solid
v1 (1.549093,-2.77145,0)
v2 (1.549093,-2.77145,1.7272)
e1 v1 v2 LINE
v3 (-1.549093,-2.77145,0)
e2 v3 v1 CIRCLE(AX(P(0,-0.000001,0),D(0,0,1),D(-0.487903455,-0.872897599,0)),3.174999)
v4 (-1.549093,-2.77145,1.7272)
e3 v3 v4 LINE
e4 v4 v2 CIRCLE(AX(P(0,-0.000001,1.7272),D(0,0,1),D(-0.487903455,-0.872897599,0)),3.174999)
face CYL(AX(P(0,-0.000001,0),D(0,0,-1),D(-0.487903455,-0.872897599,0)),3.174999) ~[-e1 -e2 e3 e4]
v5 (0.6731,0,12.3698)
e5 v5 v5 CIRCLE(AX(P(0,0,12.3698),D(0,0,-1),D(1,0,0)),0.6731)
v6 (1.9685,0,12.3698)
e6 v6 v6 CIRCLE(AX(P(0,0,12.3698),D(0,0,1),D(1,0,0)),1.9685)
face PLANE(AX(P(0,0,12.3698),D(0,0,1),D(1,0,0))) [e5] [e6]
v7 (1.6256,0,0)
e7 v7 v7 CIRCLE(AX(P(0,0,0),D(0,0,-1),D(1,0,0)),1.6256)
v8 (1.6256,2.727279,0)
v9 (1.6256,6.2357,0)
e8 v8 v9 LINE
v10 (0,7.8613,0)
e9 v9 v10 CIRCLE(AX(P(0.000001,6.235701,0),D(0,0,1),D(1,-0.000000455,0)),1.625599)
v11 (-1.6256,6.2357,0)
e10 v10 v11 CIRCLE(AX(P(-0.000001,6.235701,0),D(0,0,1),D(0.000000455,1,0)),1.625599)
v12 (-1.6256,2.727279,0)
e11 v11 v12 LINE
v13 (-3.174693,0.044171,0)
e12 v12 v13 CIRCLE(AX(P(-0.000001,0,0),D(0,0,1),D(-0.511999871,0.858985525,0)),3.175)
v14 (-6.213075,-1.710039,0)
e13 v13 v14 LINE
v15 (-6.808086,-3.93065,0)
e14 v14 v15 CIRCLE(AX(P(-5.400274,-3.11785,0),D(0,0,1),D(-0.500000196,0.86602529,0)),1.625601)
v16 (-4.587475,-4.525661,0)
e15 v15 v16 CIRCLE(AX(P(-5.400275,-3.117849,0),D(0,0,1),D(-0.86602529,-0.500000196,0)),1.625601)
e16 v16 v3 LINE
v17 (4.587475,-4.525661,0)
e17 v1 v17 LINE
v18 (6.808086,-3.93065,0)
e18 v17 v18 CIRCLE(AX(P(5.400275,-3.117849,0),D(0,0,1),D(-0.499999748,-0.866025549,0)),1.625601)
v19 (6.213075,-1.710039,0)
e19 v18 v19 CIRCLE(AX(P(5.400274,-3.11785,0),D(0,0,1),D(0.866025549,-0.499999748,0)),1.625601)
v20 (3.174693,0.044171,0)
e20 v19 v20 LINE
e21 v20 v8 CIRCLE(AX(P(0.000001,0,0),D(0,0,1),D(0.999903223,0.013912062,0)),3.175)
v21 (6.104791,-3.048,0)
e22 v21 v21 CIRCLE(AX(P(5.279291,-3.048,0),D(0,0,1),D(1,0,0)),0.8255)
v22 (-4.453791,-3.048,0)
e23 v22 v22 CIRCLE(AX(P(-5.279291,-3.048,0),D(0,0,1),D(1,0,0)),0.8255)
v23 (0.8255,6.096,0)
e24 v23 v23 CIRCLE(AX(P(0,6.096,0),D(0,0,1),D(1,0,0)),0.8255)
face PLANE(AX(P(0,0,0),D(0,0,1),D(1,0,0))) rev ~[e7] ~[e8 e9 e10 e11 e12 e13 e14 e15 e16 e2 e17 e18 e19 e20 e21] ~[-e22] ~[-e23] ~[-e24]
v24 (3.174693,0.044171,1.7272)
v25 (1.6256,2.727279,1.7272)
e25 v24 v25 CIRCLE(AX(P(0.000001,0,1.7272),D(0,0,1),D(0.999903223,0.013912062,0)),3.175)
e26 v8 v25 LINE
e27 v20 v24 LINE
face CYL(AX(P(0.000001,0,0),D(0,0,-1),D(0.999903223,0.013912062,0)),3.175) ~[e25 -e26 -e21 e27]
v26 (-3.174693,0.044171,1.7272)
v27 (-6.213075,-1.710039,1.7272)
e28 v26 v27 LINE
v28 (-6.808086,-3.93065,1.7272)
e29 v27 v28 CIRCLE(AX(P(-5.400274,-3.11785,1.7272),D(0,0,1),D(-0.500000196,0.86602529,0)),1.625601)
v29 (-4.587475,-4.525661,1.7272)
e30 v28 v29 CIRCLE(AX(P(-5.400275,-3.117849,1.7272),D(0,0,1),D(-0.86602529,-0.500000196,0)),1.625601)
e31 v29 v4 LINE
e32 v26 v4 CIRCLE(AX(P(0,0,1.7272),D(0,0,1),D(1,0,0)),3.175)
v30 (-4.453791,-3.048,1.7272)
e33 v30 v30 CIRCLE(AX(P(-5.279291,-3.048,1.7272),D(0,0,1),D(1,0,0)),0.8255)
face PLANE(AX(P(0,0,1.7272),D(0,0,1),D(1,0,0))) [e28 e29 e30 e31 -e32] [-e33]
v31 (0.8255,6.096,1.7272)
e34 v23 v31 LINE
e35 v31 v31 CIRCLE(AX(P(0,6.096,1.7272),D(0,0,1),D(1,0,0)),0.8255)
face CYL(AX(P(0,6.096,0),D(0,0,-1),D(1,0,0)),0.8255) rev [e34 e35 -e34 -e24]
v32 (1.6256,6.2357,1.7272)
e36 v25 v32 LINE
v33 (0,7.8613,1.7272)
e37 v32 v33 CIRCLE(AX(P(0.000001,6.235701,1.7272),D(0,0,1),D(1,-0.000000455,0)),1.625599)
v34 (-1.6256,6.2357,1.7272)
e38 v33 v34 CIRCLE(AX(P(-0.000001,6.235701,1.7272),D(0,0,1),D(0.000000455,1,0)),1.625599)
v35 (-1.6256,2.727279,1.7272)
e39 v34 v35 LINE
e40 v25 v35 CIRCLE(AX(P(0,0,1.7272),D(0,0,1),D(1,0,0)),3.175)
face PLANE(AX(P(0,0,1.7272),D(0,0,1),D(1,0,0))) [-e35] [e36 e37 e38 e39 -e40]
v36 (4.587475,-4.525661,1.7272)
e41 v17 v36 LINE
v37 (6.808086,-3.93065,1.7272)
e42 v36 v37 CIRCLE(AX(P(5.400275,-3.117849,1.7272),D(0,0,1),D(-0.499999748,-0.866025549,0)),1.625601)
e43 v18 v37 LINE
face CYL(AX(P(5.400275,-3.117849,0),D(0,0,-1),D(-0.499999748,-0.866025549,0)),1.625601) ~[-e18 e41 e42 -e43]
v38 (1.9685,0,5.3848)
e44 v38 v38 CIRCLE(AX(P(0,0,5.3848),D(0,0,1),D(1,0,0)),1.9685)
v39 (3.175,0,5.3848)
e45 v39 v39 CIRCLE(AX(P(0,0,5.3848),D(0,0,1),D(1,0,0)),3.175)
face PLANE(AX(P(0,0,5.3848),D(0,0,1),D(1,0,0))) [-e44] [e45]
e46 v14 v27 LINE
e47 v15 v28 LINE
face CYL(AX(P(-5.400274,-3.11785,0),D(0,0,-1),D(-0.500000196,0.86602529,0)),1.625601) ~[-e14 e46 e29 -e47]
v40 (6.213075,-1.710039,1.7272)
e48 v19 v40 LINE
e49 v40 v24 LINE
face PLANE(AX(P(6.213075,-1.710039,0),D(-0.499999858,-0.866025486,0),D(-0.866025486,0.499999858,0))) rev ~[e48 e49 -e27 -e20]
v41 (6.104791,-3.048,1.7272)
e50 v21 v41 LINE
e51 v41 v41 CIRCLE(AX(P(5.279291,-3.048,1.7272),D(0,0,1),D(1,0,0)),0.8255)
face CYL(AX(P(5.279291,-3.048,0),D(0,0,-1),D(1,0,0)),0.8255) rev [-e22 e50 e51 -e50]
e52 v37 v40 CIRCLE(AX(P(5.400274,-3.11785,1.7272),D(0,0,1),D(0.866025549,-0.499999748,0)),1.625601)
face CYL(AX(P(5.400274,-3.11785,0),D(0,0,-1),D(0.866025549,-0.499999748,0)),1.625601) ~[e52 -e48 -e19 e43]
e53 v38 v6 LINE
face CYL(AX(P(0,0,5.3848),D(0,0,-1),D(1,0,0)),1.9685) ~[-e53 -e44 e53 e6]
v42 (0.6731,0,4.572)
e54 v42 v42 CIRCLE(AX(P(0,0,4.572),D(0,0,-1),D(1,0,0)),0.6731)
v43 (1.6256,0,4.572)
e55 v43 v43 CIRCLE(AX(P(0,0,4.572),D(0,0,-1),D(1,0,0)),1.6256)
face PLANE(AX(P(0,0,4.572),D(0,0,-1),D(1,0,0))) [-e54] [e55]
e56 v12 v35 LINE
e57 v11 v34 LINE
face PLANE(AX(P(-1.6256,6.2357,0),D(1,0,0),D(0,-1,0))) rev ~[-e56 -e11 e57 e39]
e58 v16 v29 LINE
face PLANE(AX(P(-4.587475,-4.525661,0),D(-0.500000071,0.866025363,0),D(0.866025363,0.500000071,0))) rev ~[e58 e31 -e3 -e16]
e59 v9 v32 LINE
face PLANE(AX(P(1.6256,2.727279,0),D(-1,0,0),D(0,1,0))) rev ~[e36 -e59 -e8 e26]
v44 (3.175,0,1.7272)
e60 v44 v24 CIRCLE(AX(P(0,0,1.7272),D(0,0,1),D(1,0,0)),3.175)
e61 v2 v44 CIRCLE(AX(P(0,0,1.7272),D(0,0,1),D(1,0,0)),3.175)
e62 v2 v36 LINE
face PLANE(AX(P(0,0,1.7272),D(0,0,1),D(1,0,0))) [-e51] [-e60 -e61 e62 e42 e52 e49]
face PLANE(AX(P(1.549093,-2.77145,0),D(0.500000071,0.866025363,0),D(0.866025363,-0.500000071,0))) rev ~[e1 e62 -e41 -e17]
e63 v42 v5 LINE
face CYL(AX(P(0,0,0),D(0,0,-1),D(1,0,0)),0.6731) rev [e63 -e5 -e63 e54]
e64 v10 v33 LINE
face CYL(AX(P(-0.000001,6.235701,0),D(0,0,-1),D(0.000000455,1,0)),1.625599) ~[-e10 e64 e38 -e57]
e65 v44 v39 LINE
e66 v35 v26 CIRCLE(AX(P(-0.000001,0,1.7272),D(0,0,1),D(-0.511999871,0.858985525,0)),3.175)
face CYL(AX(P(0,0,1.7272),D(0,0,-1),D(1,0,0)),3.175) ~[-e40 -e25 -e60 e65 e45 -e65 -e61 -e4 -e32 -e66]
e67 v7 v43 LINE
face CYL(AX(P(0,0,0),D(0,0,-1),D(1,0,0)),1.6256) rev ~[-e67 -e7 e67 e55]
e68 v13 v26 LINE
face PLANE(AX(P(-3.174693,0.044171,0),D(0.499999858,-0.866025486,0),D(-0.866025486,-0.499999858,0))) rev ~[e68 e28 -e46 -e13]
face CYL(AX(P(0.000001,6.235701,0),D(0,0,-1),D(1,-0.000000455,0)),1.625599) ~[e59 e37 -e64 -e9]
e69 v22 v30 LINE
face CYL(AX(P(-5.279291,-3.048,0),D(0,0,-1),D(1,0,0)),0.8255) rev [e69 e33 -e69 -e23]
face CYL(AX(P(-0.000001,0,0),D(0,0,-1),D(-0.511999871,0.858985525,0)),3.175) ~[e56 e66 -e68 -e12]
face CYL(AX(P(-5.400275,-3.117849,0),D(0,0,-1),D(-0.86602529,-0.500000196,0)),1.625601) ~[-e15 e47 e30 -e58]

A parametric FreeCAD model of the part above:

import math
import FreeCAD as App
import Part
import Sketcher
Q = App.Units.Quantity

doc = App.newDocument("Part")
params = doc.addObject("Spreadsheet::Sheet", "Params")
for row, (alias, value) in enumerate([
    ("sketch1_diameter", "0.065 in"),
    ("sketch1_radius", "0.125 in"),
    ("sketch1_radius2", "0.064 in"),
    ("pad1_length", "0.068 in"),
    ("sketch2_diameter", "0.25 in"),
    ("pad2_length", "0.144 in"),
    ("sketch3_diameter", "0.155 in"),
    ("pad3_length", "0.275 in"),
    ("sketch4_diameter", "0.053 in"),
    ("sketch5_diameter", "0.128 in"),
    ("pocket2_length", "0.18 in"),
], start=1):
    params.set(f"A{row}", alias)
    params.set(f"B{row}", "=" + value)
    params.setAlias(f"B{row}", alias)

body = doc.addObject("PartDesign::Body", "Body")

# Sketch on XY plane
sketch1 = body.newObject("Sketcher::SketchObject", "Sketch")
sketch1.AttachmentSupport = (doc.getObject("XY_Plane"), [""])
sketch1.MapMode = "FlatFace"
sketch1.addGeometry([
    Part.ArcOfCircle(Part.Circle(App.Vector(0, 0, 0), App.Vector(0, 0, 1), 3.2), math.radians(-119), math.radians(-61)),  # 0
    Part.LineSegment(App.Vector(1.5, -2.8, 0), App.Vector(4.6, -4.5, 0)),  # 1
    Part.ArcOfCircle(Part.Circle(App.Vector(5.4, -3.1, 0), App.Vector(0, 0, 1), 1.6), math.radians(-120), math.radians(-30)),  # 2
    Part.ArcOfCircle(Part.Circle(App.Vector(5.4, -3.1, 0), App.Vector(0, 0, 1), 1.6), math.radians(-30), math.radians(60)),  # 3
    Part.LineSegment(App.Vector(6.2, -1.7, 0), App.Vector(3.2, 0, 0)),  # 4
    Part.ArcOfCircle(Part.Circle(App.Vector(0, 0, 0), App.Vector(0, 0, 1), 3.2), math.radians(1), math.radians(59)),  # 5
    Part.LineSegment(App.Vector(1.6, 2.7, 0), App.Vector(1.6, 6.2, 0)),  # 6
    Part.ArcOfCircle(Part.Circle(App.Vector(0, 6.2, 0), App.Vector(0, 0, 1), 1.6), math.radians(0), math.radians(90)),  # 7
    Part.ArcOfCircle(Part.Circle(App.Vector(0, 6.2, 0), App.Vector(0, 0, 1), 1.6), math.radians(90), math.radians(180)),  # 8
    Part.LineSegment(App.Vector(-1.6, 6.2, 0), App.Vector(-1.6, 2.7, 0)),  # 9
    Part.ArcOfCircle(Part.Circle(App.Vector(0, 0, 0), App.Vector(0, 0, 1), 3.2), math.radians(121), math.radians(179)),  # 10
    Part.LineSegment(App.Vector(-3.2, 0, 0), App.Vector(-6.2, -1.7, 0)),  # 11
    Part.ArcOfCircle(Part.Circle(App.Vector(-5.4, -3.1, 0), App.Vector(0, 0, 1), 1.6), math.radians(120), math.radians(210)),  # 12
    Part.ArcOfCircle(Part.Circle(App.Vector(-5.4, -3.1, 0), App.Vector(0, 0, 1), 1.6), math.radians(-150), math.radians(-60)),  # 13
    Part.LineSegment(App.Vector(-4.6, -4.5, 0), App.Vector(-1.5, -2.8, 0)),  # 14
    Part.Circle(App.Vector(-5.3, -3, 0), App.Vector(0, 0, 1), 0.8),  # 15
    Part.Circle(App.Vector(5.3, -3, 0), App.Vector(0, 0, 1), 0.8),  # 16
    Part.Circle(App.Vector(0, 6.1, 0), App.Vector(0, 0, 1), 0.8),  # 17
], False)
sketch1.addConstraint([
    Sketcher.Constraint("Coincident", 0, 2, 1, 1),
    Sketcher.Constraint("Tangent", 1, 2, 2, 1),
    Sketcher.Constraint("Tangent", 2, 2, 3, 1),
    Sketcher.Constraint("Tangent", 3, 2, 4, 1),
    Sketcher.Constraint("Coincident", 4, 2, 5, 1),
    Sketcher.Constraint("Coincident", 5, 2, 6, 1),
    Sketcher.Constraint("Tangent", 6, 2, 7, 1),
    Sketcher.Constraint("Tangent", 7, 2, 8, 1),
    Sketcher.Constraint("Tangent", 8, 2, 9, 1),
    Sketcher.Constraint("Coincident", 9, 2, 10, 1),
    Sketcher.Constraint("Coincident", 10, 2, 11, 1),
    Sketcher.Constraint("Tangent", 11, 2, 12, 1),
    Sketcher.Constraint("Tangent", 12, 2, 13, 1),
    Sketcher.Constraint("Tangent", 13, 2, 14, 1),
    Sketcher.Constraint("Coincident", 14, 2, 0, 1),
    Sketcher.Constraint("Vertical", 6),
    Sketcher.Constraint("Vertical", 9),
    Sketcher.Constraint("Coincident", 0, 3, -1, 1),
    Sketcher.Constraint("Coincident", 5, 3, -1, 1),
    Sketcher.Constraint("Coincident", 10, 3, -1, 1),
    Sketcher.Constraint("Equal", 2, 3),
    Sketcher.Constraint("Equal", 0, 5),
    Sketcher.Constraint("Equal", 3, 7),
    Sketcher.Constraint("Equal", 7, 8),
    Sketcher.Constraint("Equal", 5, 10),
    Sketcher.Constraint("Equal", 8, 12),
    Sketcher.Constraint("Equal", 12, 13),
    Sketcher.Constraint("Equal", 15, 16),
    Sketcher.Constraint("Equal", 16, 17),
    Sketcher.Constraint("Symmetric", 2, 3, 12, 3, -2),
    Sketcher.Constraint("Symmetric", 15, 3, 16, 3, -2),
    Sketcher.Constraint("PointOnObject", 7, 3, -2),
    Sketcher.Constraint("PointOnObject", 17, 3, -2),
    Sketcher.Constraint("PointOnObject", 7, 2, -2),
    Sketcher.Constraint("Parallel", 1, 4),
    Sketcher.Constraint("Parallel", 11, 14),
    Sketcher.Constraint("Horizontal", 4, 2, 10, 2),
    Sketcher.Constraint("Horizontal", 2, 2, 12, 2),
    Sketcher.Constraint("Equal", 1, 4),
    Sketcher.Constraint("Diameter", 15, Q("0.065 in")),
    Sketcher.Constraint("Angle", 1, Q("-30.000005 deg")),
    Sketcher.Constraint("Radius", 0, Q("0.125 in")),
    Sketcher.Constraint("Radius", 2, Q("0.064 in")),
    Sketcher.Constraint("DistanceY", 15, 3, -1, 1, Q("0.12 in")),
    Sketcher.Constraint("DistanceY", -1, 1, 17, 3, Q("0.24 in")),
    Sketcher.Constraint("DistanceY", 2, 2, 3, 3, Q("0.032 in")),
    Sketcher.Constraint("DistanceY", -1, 1, 7, 3, Q("0.2455 in")),
    Sketcher.Constraint("DistanceY", 3, 3, 0, 2, 0.3464),
    Sketcher.Constraint("DistanceX", 15, 3, 10, 2, 2.104598),
])
sketch1.setExpression("Constraints[39]", "Params.sketch1_diameter")
sketch1.setExpression("Constraints[41]", "Params.sketch1_radius")
sketch1.setExpression("Constraints[42]", "Params.sketch1_radius2")
pad1 = body.newObject("PartDesign::Pad", "Pad")
pad1.Profile = sketch1
pad1.setExpression("Length", "Params.pad1_length")

# Sketch on XY plane
sketch2 = body.newObject("Sketcher::SketchObject", "Sketch001")
sketch2.AttachmentSupport = (doc.getObject("XY_Plane"), [""])
sketch2.MapMode = "FlatFace"
sketch2.AttachmentOffset = App.Placement(App.Vector(0, 0, 0.068 * 25.4), App.Rotation())
sketch2.addGeometry(Part.Circle(App.Vector(0, 0, 0), App.Vector(0, 0, 1), 3.2), False)
sketch2.addConstraint([
    Sketcher.Constraint("Coincident", 0, 3, -1, 1),
    Sketcher.Constraint("Diameter", 0, Q("0.25 in")),
])
sketch2.setExpression("Constraints[1]", "Params.sketch2_diameter")
pad2 = body.newObject("PartDesign::Pad", "Pad001")
pad2.Profile = sketch2
pad2.setExpression("Length", "Params.pad2_length")

# Sketch on XY plane
sketch3 = body.newObject("Sketcher::SketchObject", "Sketch002")
sketch3.AttachmentSupport = (doc.getObject("XY_Plane"), [""])
sketch3.MapMode = "FlatFace"
sketch3.AttachmentOffset = App.Placement(App.Vector(0, 0, 0.212 * 25.4), App.Rotation())
sketch3.addGeometry(Part.Circle(App.Vector(0, 0, 0), App.Vector(0, 0, 1), 2), False)
sketch3.addConstraint([
    Sketcher.Constraint("Coincident", 0, 3, -1, 1),
    Sketcher.Constraint("Diameter", 0, Q("0.155 in")),
])
sketch3.setExpression("Constraints[1]", "Params.sketch3_diameter")
pad3 = body.newObject("PartDesign::Pad", "Pad002")
pad3.Profile = sketch3
pad3.setExpression("Length", "Params.pad3_length")

# Sketch on XY plane
sketch4 = body.newObject("Sketcher::SketchObject", "Sketch003")
sketch4.AttachmentSupport = (doc.getObject("XY_Plane"), [""])
sketch4.MapMode = "FlatFace"
sketch4.addGeometry(Part.Circle(App.Vector(0, 0, 0), App.Vector(0, 0, 1), 0.7), False)
sketch4.addConstraint([
    Sketcher.Constraint("Coincident", 0, 3, -1, 1),
    Sketcher.Constraint("Diameter", 0, Q("0.053 in")),
])
sketch4.setExpression("Constraints[1]", "Params.sketch4_diameter")
pocket1 = body.newObject("PartDesign::Pocket", "Pocket")
pocket1.Profile = sketch4
pocket1.Type = "ThroughAll"
pocket1.Reversed = True

# Sketch on XY plane
sketch5 = body.newObject("Sketcher::SketchObject", "Sketch004")
sketch5.AttachmentSupport = (doc.getObject("XY_Plane"), [""])
sketch5.MapMode = "FlatFace"
sketch5.addGeometry(Part.Circle(App.Vector(0, 0, 0), App.Vector(0, 0, 1), 1.6), False)
sketch5.addConstraint([
    Sketcher.Constraint("Coincident", 0, 3, -1, 1),
    Sketcher.Constraint("Diameter", 0, Q("0.128 in")),
])
sketch5.setExpression("Constraints[1]", "Params.sketch5_diameter")
pocket2 = body.newObject("PartDesign::Pocket", "Pocket001")
pocket2.Profile = sketch5
pocket2.setExpression("Length", "Params.pocket2_length")
pocket2.Reversed = True

doc.recompute()
